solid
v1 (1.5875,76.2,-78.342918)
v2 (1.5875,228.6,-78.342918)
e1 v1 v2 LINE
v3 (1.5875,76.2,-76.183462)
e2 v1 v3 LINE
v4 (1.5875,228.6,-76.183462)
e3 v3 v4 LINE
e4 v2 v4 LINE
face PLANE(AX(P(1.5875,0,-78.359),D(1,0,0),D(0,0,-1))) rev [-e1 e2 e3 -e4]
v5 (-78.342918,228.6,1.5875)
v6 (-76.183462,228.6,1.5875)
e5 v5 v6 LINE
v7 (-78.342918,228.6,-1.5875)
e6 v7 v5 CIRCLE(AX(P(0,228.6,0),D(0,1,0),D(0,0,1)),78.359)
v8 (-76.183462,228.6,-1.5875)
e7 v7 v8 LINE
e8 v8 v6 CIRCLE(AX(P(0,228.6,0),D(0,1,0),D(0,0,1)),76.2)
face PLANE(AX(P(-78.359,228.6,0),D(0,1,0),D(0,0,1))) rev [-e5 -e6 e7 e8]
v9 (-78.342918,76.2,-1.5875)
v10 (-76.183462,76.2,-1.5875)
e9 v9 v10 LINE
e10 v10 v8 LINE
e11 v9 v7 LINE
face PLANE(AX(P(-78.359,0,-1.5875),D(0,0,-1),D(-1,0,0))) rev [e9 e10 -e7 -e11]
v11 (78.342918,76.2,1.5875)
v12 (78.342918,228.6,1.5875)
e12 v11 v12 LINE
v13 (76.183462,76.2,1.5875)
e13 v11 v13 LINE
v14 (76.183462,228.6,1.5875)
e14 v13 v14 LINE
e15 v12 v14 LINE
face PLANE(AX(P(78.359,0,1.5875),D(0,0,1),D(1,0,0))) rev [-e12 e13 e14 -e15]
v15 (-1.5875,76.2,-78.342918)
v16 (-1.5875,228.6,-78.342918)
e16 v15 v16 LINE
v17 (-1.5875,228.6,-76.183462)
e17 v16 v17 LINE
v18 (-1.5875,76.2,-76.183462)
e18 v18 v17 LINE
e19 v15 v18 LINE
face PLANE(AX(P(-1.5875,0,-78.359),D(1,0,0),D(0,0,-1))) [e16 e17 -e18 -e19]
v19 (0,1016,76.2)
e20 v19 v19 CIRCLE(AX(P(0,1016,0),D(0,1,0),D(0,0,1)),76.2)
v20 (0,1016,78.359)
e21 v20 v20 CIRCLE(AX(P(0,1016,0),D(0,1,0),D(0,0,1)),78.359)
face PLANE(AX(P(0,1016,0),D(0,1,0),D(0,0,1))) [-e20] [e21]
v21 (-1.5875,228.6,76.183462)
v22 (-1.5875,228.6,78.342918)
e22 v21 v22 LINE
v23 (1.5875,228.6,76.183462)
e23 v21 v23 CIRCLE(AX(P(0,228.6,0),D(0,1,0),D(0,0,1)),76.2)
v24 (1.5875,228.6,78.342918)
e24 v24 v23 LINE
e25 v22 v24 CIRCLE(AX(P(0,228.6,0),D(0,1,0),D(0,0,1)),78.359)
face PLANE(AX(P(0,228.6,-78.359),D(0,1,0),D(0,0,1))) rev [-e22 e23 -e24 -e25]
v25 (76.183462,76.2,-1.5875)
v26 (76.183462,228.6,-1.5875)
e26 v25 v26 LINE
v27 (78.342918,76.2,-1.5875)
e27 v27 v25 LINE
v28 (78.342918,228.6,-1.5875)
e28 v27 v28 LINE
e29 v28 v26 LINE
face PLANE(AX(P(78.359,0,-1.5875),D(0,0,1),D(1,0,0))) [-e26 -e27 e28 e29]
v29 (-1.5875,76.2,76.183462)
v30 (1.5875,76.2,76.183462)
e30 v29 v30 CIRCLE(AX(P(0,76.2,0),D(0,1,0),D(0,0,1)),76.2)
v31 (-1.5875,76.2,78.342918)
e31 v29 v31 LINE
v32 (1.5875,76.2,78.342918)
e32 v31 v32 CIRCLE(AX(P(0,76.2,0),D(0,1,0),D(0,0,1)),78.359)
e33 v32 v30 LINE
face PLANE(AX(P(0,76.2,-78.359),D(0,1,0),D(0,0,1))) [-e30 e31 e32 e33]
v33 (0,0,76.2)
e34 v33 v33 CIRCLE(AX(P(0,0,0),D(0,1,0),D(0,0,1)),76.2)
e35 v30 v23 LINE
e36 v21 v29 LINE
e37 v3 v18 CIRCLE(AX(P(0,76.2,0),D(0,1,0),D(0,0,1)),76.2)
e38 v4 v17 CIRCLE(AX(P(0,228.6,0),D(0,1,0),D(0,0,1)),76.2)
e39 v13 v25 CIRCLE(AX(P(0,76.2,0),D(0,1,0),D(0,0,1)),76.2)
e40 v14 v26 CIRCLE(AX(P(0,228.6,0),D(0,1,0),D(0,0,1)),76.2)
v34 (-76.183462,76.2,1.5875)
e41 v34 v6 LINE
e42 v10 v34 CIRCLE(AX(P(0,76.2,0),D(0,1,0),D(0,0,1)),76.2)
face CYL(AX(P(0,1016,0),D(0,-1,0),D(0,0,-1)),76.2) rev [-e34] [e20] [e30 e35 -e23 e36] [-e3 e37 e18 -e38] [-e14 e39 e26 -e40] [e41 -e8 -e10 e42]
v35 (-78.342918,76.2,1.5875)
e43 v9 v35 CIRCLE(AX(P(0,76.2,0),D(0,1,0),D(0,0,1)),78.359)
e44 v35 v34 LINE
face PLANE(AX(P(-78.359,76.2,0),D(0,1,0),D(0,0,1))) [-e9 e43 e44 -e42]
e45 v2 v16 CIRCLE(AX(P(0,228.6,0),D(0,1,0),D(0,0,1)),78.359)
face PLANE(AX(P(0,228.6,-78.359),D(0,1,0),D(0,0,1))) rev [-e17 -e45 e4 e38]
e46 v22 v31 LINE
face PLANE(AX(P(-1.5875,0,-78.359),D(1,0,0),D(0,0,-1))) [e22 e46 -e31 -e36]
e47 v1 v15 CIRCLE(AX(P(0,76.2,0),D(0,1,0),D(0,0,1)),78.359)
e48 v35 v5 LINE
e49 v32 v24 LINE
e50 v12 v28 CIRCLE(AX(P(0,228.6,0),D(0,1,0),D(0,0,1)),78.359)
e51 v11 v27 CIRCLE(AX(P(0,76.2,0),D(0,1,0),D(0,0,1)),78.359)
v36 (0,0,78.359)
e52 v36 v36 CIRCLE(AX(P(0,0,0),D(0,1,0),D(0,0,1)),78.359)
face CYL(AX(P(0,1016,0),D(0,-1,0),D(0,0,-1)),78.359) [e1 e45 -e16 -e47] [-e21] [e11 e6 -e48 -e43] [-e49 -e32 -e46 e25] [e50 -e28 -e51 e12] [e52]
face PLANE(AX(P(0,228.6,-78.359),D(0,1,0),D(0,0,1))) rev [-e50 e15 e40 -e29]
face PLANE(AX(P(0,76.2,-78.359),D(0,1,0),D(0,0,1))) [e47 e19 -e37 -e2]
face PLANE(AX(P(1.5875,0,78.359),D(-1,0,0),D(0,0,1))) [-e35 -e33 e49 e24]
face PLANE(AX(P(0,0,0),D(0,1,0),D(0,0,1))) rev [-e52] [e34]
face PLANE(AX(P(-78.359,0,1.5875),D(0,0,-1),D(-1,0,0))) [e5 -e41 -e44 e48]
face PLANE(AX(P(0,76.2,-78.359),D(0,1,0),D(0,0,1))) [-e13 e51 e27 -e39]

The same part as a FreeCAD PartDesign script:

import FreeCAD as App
import Part
import Sketcher
Q = App.Units.Quantity


def add_polygon(sketch, points):
    """Adds a closed chain of lines whose ends are joined by coincident constraints."""
    first, n = sketch.GeometryCount, len(points)
    for a, b in zip(points, points[1:] + points[:1]):
        sketch.addGeometry(Part.LineSegment(App.Vector(*a, 0), App.Vector(*b, 0)), False)
    for i in range(n):
        sketch.addConstraint(Sketcher.Constraint("Coincident", first + i, 2, first + (i + 1) % n, 1))

doc = App.newDocument("Part")
body = doc.addObject("PartDesign::Body", "Body")

# Sketch on XZ plane
sketch1 = body.newObject("Sketcher::SketchObject", "Sketch")
sketch1.AttachmentSupport = (doc.getObject("XZ_Plane"), [""])
sketch1.MapMode = "FlatFace"
sketch1.addGeometry(Part.Circle(App.Vector(0, 0, 0), App.Vector(0, 0, 1), 78), False)
sketch1.addGeometry(Part.Circle(App.Vector(0, 0, 0), App.Vector(0, 0, 1), 76), False)
sketch1.addConstraint(Sketcher.Constraint("Coincident", 0, 3, -1, 1))
sketch1.addConstraint(Sketcher.Constraint("Coincident", 1, 3, -1, 1))
sketch1.addConstraint(Sketcher.Constraint("Diameter", 1, Q("6 in")))
sketch1.addConstraint(Sketcher.Constraint("Diameter", 0, Q("6.17 in")))
pad1 = body.newObject("PartDesign::Pad", "Pad")
pad1.Profile = sketch1
pad1.Length = Q("40 in")
pad1.Reversed = True

# Sketch on YZ plane
sketch2 = body.newObject("Sketcher::SketchObject", "Sketch001")
sketch2.AttachmentSupport = (doc.getObject("YZ_Plane"), [""])
sketch2.MapMode = "FlatFace"
add_polygon(sketch2, [(228.6, 1.6), (76.2, 1.6), (76.2, -1.6), (228.6, -1.6)])  # lines 0-3
sketch2.addConstraint(Sketcher.Constraint("Horizontal", 0))
sketch2.addConstraint(Sketcher.Constraint("Vertical", 1))
sketch2.addConstraint(Sketcher.Constraint("Horizontal", 2))
sketch2.addConstraint(Sketcher.Constraint("Vertical", 3))
sketch2.addConstraint(Sketcher.Constraint("DistanceX", 0, 2, 0, 1, Q("6 in")))
sketch2.addConstraint(Sketcher.Constraint("DistanceX", -1, 1, 0, 2, Q("3 in")))
sketch2.addConstraint(Sketcher.Constraint("DistanceY", 1, 2, 1, 1, Q("0.125 in")))
sketch2.addConstraint(Sketcher.Constraint("DistanceY", -1, 1, 0, 2, Q("0.0625 in")))
pocket1 = body.newObject("PartDesign::Pocket", "Pocket")
pocket1.Profile = sketch2
pocket1.Type = "ThroughAll"
doc.recompute()

polarpattern = body.newObject("PartDesign::PolarPattern", "PolarPattern")
polarpattern.Originals = [pocket1]
polarpattern.Axis = (doc.getObject("Y_Axis"), [""])
polarpattern.Angle = 360
polarpattern.Occurrences = 4
body.Tip = polarpattern

doc.recompute()
